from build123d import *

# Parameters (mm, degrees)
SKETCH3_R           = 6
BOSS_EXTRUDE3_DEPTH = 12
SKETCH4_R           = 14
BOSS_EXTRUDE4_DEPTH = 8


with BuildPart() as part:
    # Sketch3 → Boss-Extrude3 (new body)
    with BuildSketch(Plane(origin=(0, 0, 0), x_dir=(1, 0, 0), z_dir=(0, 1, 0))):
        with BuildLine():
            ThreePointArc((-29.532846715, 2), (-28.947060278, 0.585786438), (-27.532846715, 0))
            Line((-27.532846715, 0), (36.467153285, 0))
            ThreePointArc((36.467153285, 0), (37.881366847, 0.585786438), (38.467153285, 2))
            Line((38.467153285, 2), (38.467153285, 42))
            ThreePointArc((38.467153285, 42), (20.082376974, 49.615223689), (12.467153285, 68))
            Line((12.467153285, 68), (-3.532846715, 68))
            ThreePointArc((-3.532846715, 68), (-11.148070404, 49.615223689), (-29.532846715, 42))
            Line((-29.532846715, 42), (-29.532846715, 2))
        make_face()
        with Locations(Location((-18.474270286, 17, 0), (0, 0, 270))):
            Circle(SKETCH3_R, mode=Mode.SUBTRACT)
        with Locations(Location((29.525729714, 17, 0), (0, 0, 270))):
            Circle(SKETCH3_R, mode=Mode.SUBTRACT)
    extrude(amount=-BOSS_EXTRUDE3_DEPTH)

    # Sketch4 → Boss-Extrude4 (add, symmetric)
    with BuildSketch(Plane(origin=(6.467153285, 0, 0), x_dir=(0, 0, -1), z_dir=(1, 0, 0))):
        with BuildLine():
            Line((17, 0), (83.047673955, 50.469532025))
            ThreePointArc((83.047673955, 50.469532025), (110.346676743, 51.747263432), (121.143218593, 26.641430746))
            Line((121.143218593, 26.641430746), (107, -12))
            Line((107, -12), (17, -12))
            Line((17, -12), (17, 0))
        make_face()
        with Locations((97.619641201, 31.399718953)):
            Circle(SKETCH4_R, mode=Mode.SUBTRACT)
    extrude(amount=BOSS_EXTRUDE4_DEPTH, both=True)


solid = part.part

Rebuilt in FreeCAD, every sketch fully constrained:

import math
import FreeCAD as App
import Part
import Sketcher

V = App.Vector

doc = App.newDocument("Part")
body = doc.addObject("PartDesign::Body", "Body")

# Sketch on XZ plane
sketch1 = body.newObject("Sketcher::SketchObject", "Sketch")
sketch1.AttachmentSupport = (doc.getObject("XZ_Plane"), [""])
sketch1.MapMode = "FlatFace"
sketch1.addGeometry([
    Part.ArcOfCircle(Part.Circle(V(-27.5, -2, 0), V(0, 0, 1), 2), math.radians(90), math.radians(180)),  # 0
    Part.LineSegment(V(-27.5, 0, 0), V(36.5, 0, 0)),  # 1
    Part.ArcOfCircle(Part.Circle(V(36.5, -2, 0), V(0, 0, 1), 2), math.radians(0), math.radians(90)),  # 2
    Part.LineSegment(V(38.5, -2, 0), V(38.5, -42, 0)),  # 3
    Part.ArcOfCircle(Part.Circle(V(38.5, -68, 0), V(0, 0, 1), 26), math.radians(90), math.radians(180)),  # 4
    Part.LineSegment(V(12.5, -68, 0), V(-3.5, -68, 0)),  # 5
    Part.ArcOfCircle(Part.Circle(V(-29.5, -68, 0), V(0, 0, 1), 26), math.radians(0), math.radians(90)),  # 6
    Part.LineSegment(V(-29.5, -42, 0), V(-29.5, -2, 0)),  # 7
    Part.Circle(V(-18.5, -17, 0), V(0, 0, 1), 6),  # 8
    Part.Circle(V(29.5, -17, 0), V(0, 0, 1), 6),  # 9
], False)
sketch1.addConstraint([
    Sketcher.Constraint("Tangent", 0, 1, 1, 1),
    Sketcher.Constraint("Tangent", 1, 2, 2, 2),
    Sketcher.Constraint("Tangent", 2, 1, 3, 1),
    Sketcher.Constraint("Coincident", 3, 2, 4, 1),
    Sketcher.Constraint("Coincident", 4, 2, 5, 1),
    Sketcher.Constraint("Coincident", 5, 2, 6, 1),
    Sketcher.Constraint("Coincident", 6, 2, 7, 1),
    Sketcher.Constraint("Tangent", 7, 2, 0, 2),
    Sketcher.Constraint("Horizontal", 1),
    Sketcher.Constraint("Vertical", 3),
    Sketcher.Constraint("Horizontal", 5),
    Sketcher.Constraint("Vertical", 7),
    Sketcher.Constraint("Equal", 0, 2),
    Sketcher.Constraint("Equal", 4, 6),
    Sketcher.Constraint("Equal", 8, 9),
    Sketcher.Constraint("PointOnObject", 0, 1, -1),
    Sketcher.Constraint("Horizontal", 4, 3, 6, 3),
    Sketcher.Constraint("Horizontal", 8, 3, 9, 3),
    Sketcher.Constraint("Horizontal", 6, 3, 4, 2),
    Sketcher.Constraint("Vertical", 4, 3, 2, 1),
    Sketcher.Constraint("Diameter", 8, 12.0),
    Sketcher.Constraint("Radius", 0, 2.0),
    Sketcher.Constraint("Radius", 4, 26.0),
    Sketcher.Constraint("DistanceX", 1, 1, 1, 2, 64.0),
    Sketcher.Constraint("DistanceX", 5, 2, 5, 1, 16.0),
    Sketcher.Constraint("DistanceY", 3, 2, 3, 1, 40.0),
    Sketcher.Constraint("DistanceY", 8, 3, -1, 1, 17.0),
    Sketcher.Constraint("DistanceX", 8, 3, 9, 3, 48.0),
    Sketcher.Constraint("DistanceX", 8, 3, -1, 1, 18.47427),
    Sketcher.Constraint("DistanceX", 0, 3, -1, 1, 27.532847),
])
pad1 = body.newObject("PartDesign::Pad", "Pad")
pad1.Profile = sketch1
pad1.Length = 12

# Sketch on YZ plane
sketch2 = body.newObject("Sketcher::SketchObject", "Sketch001")
sketch2.AttachmentSupport = (doc.getObject("YZ_Plane"), [""])
sketch2.MapMode = "FlatFace"
sketch2.AttachmentOffset = App.Placement(V(0, 0, 6.467153), App.Rotation())
sketch2.addGeometry([
    Part.LineSegment(V(50, -83, 0), V(0, -17, 0)),  # 0
    Part.LineSegment(V(0, -17, 0), V(-12, -17, 0)),  # 1
    Part.LineSegment(V(-12, -17, 0), V(-12, -107, 0)),  # 2
    Part.LineSegment(V(-12, -107, 0), V(27, -121, 0)),  # 3
    Part.ArcOfCircle(Part.Circle(V(31, -98, 0), V(0, 0, 1), 24), math.radians(-101), math.radians(37)),  # 4
    Part.Circle(V(31, -98, 0), V(0, 0, 1), 14),  # 5
], False)
sketch2.addConstraint([
    Sketcher.Constraint("Coincident", 0, 2, 1, 1),
    Sketcher.Constraint("Coincident", 1, 2, 2, 1),
    Sketcher.Constraint("Coincident", 2, 2, 3, 1),
    Sketcher.Constraint("Coincident", 3, 2, 4, 1),
    Sketcher.Constraint("Tangent", 4, 2, 0, 1),
    Sketcher.Constraint("Horizontal", 1),
    Sketcher.Constraint("Vertical", 2),
    Sketcher.Constraint("Coincident", 5, 3, 4, 3),
    Sketcher.Constraint("PointOnObject", 0, 2, -2),
    Sketcher.Constraint("Diameter", 5, 28.0),
    Sketcher.Constraint("Radius", 4, 24.0),
    Sketcher.Constraint("DistanceX", 1, 2, 1, 1, 12.0),
    Sketcher.Constraint("DistanceY", 2, 2, 2, 1, 90.0),
    Sketcher.Constraint("DistanceY", 0, 2, -1, 1, 17.0),
    Sketcher.Constraint("Distance", 3, 41.1484),
    Sketcher.Constraint("DistanceX", 3, 2, 4, 2, 23.828101),
    Sketcher.Constraint("DistanceX", -1, 1, 4, 3, 31.399719),
])
pad2 = body.newObject("PartDesign::Pad", "Pad001")
pad2.Profile = sketch2
pad2.Length = 16
pad2.Midplane = True

doc.recompute()
